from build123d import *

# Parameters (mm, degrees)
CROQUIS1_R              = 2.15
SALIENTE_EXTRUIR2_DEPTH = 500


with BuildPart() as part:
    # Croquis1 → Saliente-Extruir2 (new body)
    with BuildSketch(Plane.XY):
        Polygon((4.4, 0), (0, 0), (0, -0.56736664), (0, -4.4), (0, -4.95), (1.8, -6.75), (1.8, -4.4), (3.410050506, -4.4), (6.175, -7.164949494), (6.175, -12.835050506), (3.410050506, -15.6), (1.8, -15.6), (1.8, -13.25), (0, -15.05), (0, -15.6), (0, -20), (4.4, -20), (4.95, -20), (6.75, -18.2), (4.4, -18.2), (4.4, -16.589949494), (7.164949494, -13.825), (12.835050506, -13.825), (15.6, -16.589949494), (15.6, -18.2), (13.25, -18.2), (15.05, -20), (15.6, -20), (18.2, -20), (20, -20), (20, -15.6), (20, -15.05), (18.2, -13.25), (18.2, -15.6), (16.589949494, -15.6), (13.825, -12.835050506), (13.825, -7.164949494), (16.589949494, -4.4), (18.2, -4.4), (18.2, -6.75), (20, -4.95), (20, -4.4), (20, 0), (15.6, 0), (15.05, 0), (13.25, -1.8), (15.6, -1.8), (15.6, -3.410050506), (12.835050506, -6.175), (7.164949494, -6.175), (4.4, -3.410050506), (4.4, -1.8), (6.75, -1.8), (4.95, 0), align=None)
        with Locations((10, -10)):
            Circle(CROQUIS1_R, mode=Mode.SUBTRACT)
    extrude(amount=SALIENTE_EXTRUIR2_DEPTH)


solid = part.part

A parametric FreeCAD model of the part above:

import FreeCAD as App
import Part
import Sketcher

V = App.Vector
Q = App.Units.Quantity

doc = App.newDocument("Part")
params = doc.addObject("Spreadsheet::Sheet", "Params")
for row, (alias, value) in enumerate([
    ("sketch1_diameter", "4.3 mm"),
    ("sketch1_width", "4.95 mm"),
    ("sketch1_width2", "2.35 mm"),
    ("pad1_length", "500 mm"),
], start=1):
    params.set(f"A{row}", alias)
    params.set(f"B{row}", "=" + value)
    params.setAlias(f"B{row}", alias)

body = doc.addObject("PartDesign::Body", "Body")

# Sketch on XY plane
sketch1 = body.newObject("Sketcher::SketchObject", "Sketch")
sketch1.AttachmentSupport = (doc.getObject("XY_Plane"), [""])
sketch1.MapMode = "FlatFace"
sketch1.addGeometry(Part.LineSegment(V(0, 0, 0), V(0, -5, 0)), False)
sketch1.addGeometry(Part.LineSegment(V(0, -5, 0), V(1.8, -6.8, 0)), False)
sketch1.addGeometry(Part.LineSegment(V(1.8, -6.8, 0), V(1.8, -4.4, 0)), False)
sketch1.addGeometry(Part.LineSegment(V(1.8, -4.4, 0), V(3.4, -4.4, 0)), False)
sketch1.addGeometry(Part.LineSegment(V(3.4, -4.4, 0), V(6.2, -7.2, 0)), False)
sketch1.addGeometry(Part.LineSegment(V(6.2, -7.2, 0), V(6.2, -12.8, 0)), False)
sketch1.addGeometry(Part.LineSegment(V(6.2, -12.8, 0), V(3.4, -15.6, 0)), False)
sketch1.addGeometry(Part.LineSegment(V(3.4, -15.6, 0), V(1.8, -15.6, 0)), False)
sketch1.addGeometry(Part.LineSegment(V(1.8, -15.6, 0), V(1.8, -13.2, 0)), False)
sketch1.addGeometry(Part.LineSegment(V(1.8, -13.2, 0), V(0, -15.1, 0)), False)
sketch1.addGeometry(Part.LineSegment(V(0, -15.1, 0), V(0, -20, 0)), False)
sketch1.addGeometry(Part.LineSegment(V(0, -20, 0), V(5, -20, 0)), False)
sketch1.addGeometry(Part.LineSegment(V(5, -20, 0), V(6.8, -18.2, 0)), False)
sketch1.addGeometry(Part.LineSegment(V(6.8, -18.2, 0), V(4.4, -18.2, 0)), False)
sketch1.addGeometry(Part.LineSegment(V(4.4, -18.2, 0), V(4.4, -16.6, 0)), False)
sketch1.addGeometry(Part.LineSegment(V(4.4, -16.6, 0), V(7.2, -13.8, 0)), False)
sketch1.addGeometry(Part.LineSegment(V(7.2, -13.8, 0), V(12.8, -13.8, 0)), False)
sketch1.addGeometry(Part.LineSegment(V(12.8, -13.8, 0), V(15.6, -16.6, 0)), False)
sketch1.addGeometry(Part.LineSegment(V(15.6, -16.6, 0), V(15.6, -18.2, 0)), False)
sketch1.addGeometry(Part.LineSegment(V(15.6, -18.2, 0), V(13.2, -18.2, 0)), False)
sketch1.addGeometry(Part.LineSegment(V(13.2, -18.2, 0), V(15.1, -20, 0)), False)
sketch1.addGeometry(Part.LineSegment(V(15.1, -20, 0), V(20, -20, 0)), False)
sketch1.addGeometry(Part.LineSegment(V(20, -20, 0), V(20, -15.1, 0)), False)
sketch1.addGeometry(Part.LineSegment(V(20, -15.1, 0), V(18.2, -13.2, 0)), False)
sketch1.addGeometry(Part.LineSegment(V(18.2, -13.2, 0), V(18.2, -15.6, 0)), False)
sketch1.addGeometry(Part.LineSegment(V(18.2, -15.6, 0), V(16.6, -15.6, 0)), False)
sketch1.addGeometry(Part.LineSegment(V(16.6, -15.6, 0), V(13.8, -12.8, 0)), False)
sketch1.addGeometry(Part.LineSegment(V(13.8, -12.8, 0), V(13.8, -7.2, 0)), False)
sketch1.addGeometry(Part.LineSegment(V(13.8, -7.2, 0), V(16.6, -4.4, 0)), False)
sketch1.addGeometry(Part.LineSegment(V(16.6, -4.4, 0), V(18.2, -4.4, 0)), False)
sketch1.addGeometry(Part.LineSegment(V(18.2, -4.4, 0), V(18.2, -6.8, 0)), False)
sketch1.addGeometry(Part.LineSegment(V(18.2, -6.8, 0), V(20, -5, 0)), False)
sketch1.addGeometry(Part.LineSegment(V(20, -5, 0), V(20, 0, 0)), False)
sketch1.addGeometry(Part.LineSegment(V(20, 0, 0), V(15.1, 0, 0)), False)
sketch1.addGeometry(Part.LineSegment(V(15.1, 0, 0), V(13.2, -1.8, 0)), False)
sketch1.addGeometry(Part.LineSegment(V(13.2, -1.8, 0), V(15.6, -1.8, 0)), False)
sketch1.addGeometry(Part.LineSegment(V(15.6, -1.8, 0), V(15.6, -3.4, 0)), False)
sketch1.addGeometry(Part.LineSegment(V(15.6, -3.4, 0), V(12.8, -6.2, 0)), False)
sketch1.addGeometry(Part.LineSegment(V(12.8, -6.2, 0), V(7.2, -6.2, 0)), False)
sketch1.addGeometry(Part.LineSegment(V(7.2, -6.2, 0), V(4.4, -3.4, 0)), False)
sketch1.addGeometry(Part.LineSegment(V(4.4, -3.4, 0), V(4.4, -1.8, 0)), False)
sketch1.addGeometry(Part.LineSegment(V(4.4, -1.8, 0), V(6.8, -1.8, 0)), False)
sketch1.addGeometry(Part.LineSegment(V(6.8, -1.8, 0), V(5, 0, 0)), False)
sketch1.addGeometry(Part.LineSegment(V(5, 0, 0), V(0, 0, 0)), False)
sketch1.addGeometry(Part.Circle(V(10, -10, 0), V(0, 0, 1), 2.1), False)
sketch1.addConstraint(Sketcher.Constraint("Coincident", 0, 2, 1, 1))
sketch1.addConstraint(Sketcher.Constraint("Coincident", 1, 2, 2, 1))
sketch1.addConstraint(Sketcher.Constraint("Coincident", 2, 2, 3, 1))
sketch1.addConstraint(Sketcher.Constraint("Coincident", 3, 2, 4, 1))
sketch1.addConstraint(Sketcher.Constraint("Coincident", 4, 2, 5, 1))
sketch1.addConstraint(Sketcher.Constraint("Coincident", 5, 2, 6, 1))
sketch1.addConstraint(Sketcher.Constraint("Coincident", 6, 2, 7, 1))
sketch1.addConstraint(Sketcher.Constraint("Coincident", 7, 2, 8, 1))
sketch1.addConstraint(Sketcher.Constraint("Coincident", 8, 2, 9, 1))
sketch1.addConstraint(Sketcher.Constraint("Coincident", 9, 2, 10, 1))
sketch1.addConstraint(Sketcher.Constraint("Coincident", 10, 2, 11, 1))
sketch1.addConstraint(Sketcher.Constraint("Coincident", 11, 2, 12, 1))
sketch1.addConstraint(Sketcher.Constraint("Coincident", 12, 2, 13, 1))
sketch1.addConstraint(Sketcher.Constraint("Coincident", 13, 2, 14, 1))
sketch1.addConstraint(Sketcher.Constraint("Coincident", 14, 2, 15, 1))
sketch1.addConstraint(Sketcher.Constraint("Coincident", 15, 2, 16, 1))
sketch1.addConstraint(Sketcher.Constraint("Coincident", 16, 2, 17, 1))
sketch1.addConstraint(Sketcher.Constraint("Coincident", 17, 2, 18, 1))
sketch1.addConstraint(Sketcher.Constraint("Coincident", 18, 2, 19, 1))
sketch1.addConstraint(Sketcher.Constraint("Coincident", 19, 2, 20, 1))
sketch1.addConstraint(Sketcher.Constraint("Coincident", 20, 2, 21, 1))
sketch1.addConstraint(Sketcher.Constraint("Coincident", 21, 2, 22, 1))
sketch1.addConstraint(Sketcher.Constraint("Coincident", 22, 2, 23, 1))
sketch1.addConstraint(Sketcher.Constraint("Coincident", 23, 2, 24, 1))
sketch1.addConstraint(Sketcher.Constraint("Coincident", 24, 2, 25, 1))
sketch1.addConstraint(Sketcher.Constraint("Coincident", 25, 2, 26, 1))
sketch1.addConstraint(Sketcher.Constraint("Coincident", 26, 2, 27, 1))
sketch1.addConstraint(Sketcher.Constraint("Coincident", 27, 2, 28, 1))
sketch1.addConstraint(Sketcher.Constraint("Coincident", 28, 2, 29, 1))
sketch1.addConstraint(Sketcher.Constraint("Coincident", 29, 2, 30, 1))
sketch1.addConstraint(Sketcher.Constraint("Coincident", 30, 2, 31, 1))
sketch1.addConstraint(Sketcher.Constraint("Coincident", 31, 2, 32, 1))
sketch1.addConstraint(Sketcher.Constraint("Coincident", 32, 2, 33, 1))
sketch1.addConstraint(Sketcher.Constraint("Coincident", 33, 2, 34, 1))
sketch1.addConstraint(Sketcher.Constraint("Coincident", 34, 2, 35, 1))
sketch1.addConstraint(Sketcher.Constraint("Coincident", 35, 2, 36, 1))
sketch1.addConstraint(Sketcher.Constraint("Coincident", 36, 2, 37, 1))
sketch1.addConstraint(Sketcher.Constraint("Coincident", 37, 2, 38, 1))
sketch1.addConstraint(Sketcher.Constraint("Coincident", 38, 2, 39, 1))
sketch1.addConstraint(Sketcher.Constraint("Coincident", 39, 2, 40, 1))
sketch1.addConstraint(Sketcher.Constraint("Coincident", 40, 2, 41, 1))
sketch1.addConstraint(Sketcher.Constraint("Coincident", 41, 2, 42, 1))
sketch1.addConstraint(Sketcher.Constraint("Coincident", 42, 2, 43, 1))
sketch1.addConstraint(Sketcher.Constraint("Coincident", 43, 2, 0, 1))
sketch1.addConstraint(Sketcher.Constraint("Vertical", 0))
sketch1.addConstraint(Sketcher.Constraint("Vertical", 2))
sketch1.addConstraint(Sketcher.Constraint("Horizontal", 3))
sketch1.addConstraint(Sketcher.Constraint("Vertical", 5))
sketch1.addConstraint(Sketcher.Constraint("Horizontal", 7))
sketch1.addConstraint(Sketcher.Constraint("Vertical", 8))
sketch1.addConstraint(Sketcher.Constraint("Vertical", 10))
sketch1.addConstraint(Sketcher.Constraint("Horizontal", 11))
sketch1.addConstraint(Sketcher.Constraint("Horizontal", 13))
sketch1.addConstraint(Sketcher.Constraint("Vertical", 14))
sketch1.addConstraint(Sketcher.Constraint("Horizontal", 16))
sketch1.addConstraint(Sketcher.Constraint("Vertical", 18))
sketch1.addConstraint(Sketcher.Constraint("Horizontal", 19))
sketch1.addConstraint(Sketcher.Constraint("Horizontal", 21))
sketch1.addConstraint(Sketcher.Constraint("Vertical", 22))
sketch1.addConstraint(Sketcher.Constraint("Vertical", 24))
sketch1.addConstraint(Sketcher.Constraint("Horizontal", 25))
sketch1.addConstraint(Sketcher.Constraint("Vertical", 27))
sketch1.addConstraint(Sketcher.Constraint("Horizontal", 29))
sketch1.addConstraint(Sketcher.Constraint("Vertical", 30))
sketch1.addConstraint(Sketcher.Constraint("Vertical", 32))
sketch1.addConstraint(Sketcher.Constraint("Horizontal", 33))
sketch1.addConstraint(Sketcher.Constraint("Horizontal", 35))
sketch1.addConstraint(Sketcher.Constraint("Vertical", 36))
sketch1.addConstraint(Sketcher.Constraint("Horizontal", 38))
sketch1.addConstraint(Sketcher.Constraint("Vertical", 40))
sketch1.addConstraint(Sketcher.Constraint("Horizontal", 41))
sketch1.addConstraint(Sketcher.Constraint("Horizontal", 43))
sketch1.addConstraint(Sketcher.Constraint("Coincident", 43, 2, -1, 1))
sketch1.addConstraint(Sketcher.Constraint("PointOnObject", 9, 2, -2))
sketch1.addConstraint(Sketcher.Constraint("PointOnObject", 32, 2, -1))
sketch1.addConstraint(Sketcher.Constraint("Parallel", 1, 4))
sketch1.addConstraint(Sketcher.Constraint("Perpendicular", 4, 6))
sketch1.addConstraint(Sketcher.Constraint("Parallel", 6, 9))
sketch1.addConstraint(Sketcher.Constraint("Parallel", 9, 12))
sketch1.addConstraint(Sketcher.Constraint("Parallel", 12, 15))
sketch1.addConstraint(Sketcher.Constraint("Perpendicular", 15, 17))
sketch1.addConstraint(Sketcher.Constraint("Parallel", 17, 20))
sketch1.addConstraint(Sketcher.Constraint("Parallel", 20, 23))
sketch1.addConstraint(Sketcher.Constraint("Parallel", 23, 26))
sketch1.addConstraint(Sketcher.Constraint("Perpendicular", 26, 28))
sketch1.addConstraint(Sketcher.Constraint("Parallel", 28, 31))
sketch1.addConstraint(Sketcher.Constraint("Parallel", 31, 34))
sketch1.addConstraint(Sketcher.Constraint("Parallel", 34, 37))
sketch1.addConstraint(Sketcher.Constraint("Perpendicular", 37, 39))
sketch1.addConstraint(Sketcher.Constraint("Parallel", 39, 42))
sketch1.addConstraint(Sketcher.Constraint("Horizontal", 14, 2, 17, 2))
sketch1.addConstraint(Sketcher.Constraint("Horizontal", 13, 2, 18, 2))
sketch1.addConstraint(Sketcher.Constraint("Horizontal", 11, 2, 20, 2))
sketch1.addConstraint(Sketcher.Constraint("Horizontal", 9, 2, 22, 2))
sketch1.addConstraint(Sketcher.Constraint("Horizontal", 8, 2, 23, 2))
sketch1.addConstraint(Sketcher.Constraint("Horizontal", 7, 2, 24, 2))
sketch1.addConstraint(Sketcher.Constraint("Horizontal", 5, 2, 26, 2))
sketch1.addConstraint(Sketcher.Constraint("Horizontal", 4, 2, 27, 2))
sketch1.addConstraint(Sketcher.Constraint("Horizontal", 3, 2, 28, 2))
sketch1.addConstraint(Sketcher.Constraint("Horizontal", 1, 2, 30, 2))
sketch1.addConstraint(Sketcher.Constraint("Horizontal", 0, 2, 31, 2))
sketch1.addConstraint(Sketcher.Constraint("Horizontal", 36, 2, 39, 2))
sketch1.addConstraint(Sketcher.Constraint("Horizontal", 35, 2, 40, 2))
sketch1.addConstraint(Sketcher.Constraint("Vertical", 3, 2, 6, 2))
sketch1.addConstraint(Sketcher.Constraint("Vertical", 2, 2, 7, 2))
sketch1.addConstraint(Sketcher.Constraint("Vertical", 25, 2, 28, 2))
sketch1.addConstraint(Sketcher.Constraint("Vertical", 24, 2, 29, 2))
sketch1.addConstraint(Sketcher.Constraint("Vertical", 20, 2, 33, 2))
sketch1.addConstraint(Sketcher.Constraint("Vertical", 19, 2, 34, 2))
sketch1.addConstraint(Sketcher.Constraint("Vertical", 18, 2, 35, 2))
sketch1.addConstraint(Sketcher.Constraint("Vertical", 16, 2, 37, 2))
sketch1.addConstraint(Sketcher.Constraint("Vertical", 15, 2, 38, 2))
sketch1.addConstraint(Sketcher.Constraint("Vertical", 12, 2, 41, 2))
sketch1.addConstraint(Sketcher.Constraint("Equal", 13, 19))
sketch1.addConstraint(Sketcher.Constraint("Equal", 11, 21))
sketch1.addConstraint(Sketcher.Constraint("Equal", 7, 25))
sketch1.addConstraint(Sketcher.Constraint("Equal", 43, 0))
sketch1.addConstraint(Sketcher.Constraint("Equal", 41, 2))
sketch1.addConstraint(Sketcher.Constraint("Equal", 38, 5))
sketch1.addConstraint(Sketcher.Constraint("Equal", 2, 8))
sketch1.addConstraint(Sketcher.Constraint("Equal", 0, 10))
sketch1.addConstraint(Sketcher.Constraint("Equal", 29, 14))
sketch1.addConstraint(Sketcher.Constraint("Equal", 18, 36))
sketch1.addConstraint(Sketcher.Constraint("Equal", 9, 12))
sketch1.addConstraint(Sketcher.Constraint("Equal", 6, 15))
sketch1.addConstraint(Sketcher.Constraint("Diameter", 44, Q("4.3 mm")))
sketch1.addConstraint(Sketcher.Constraint("DistanceX", -1, 1, 44, 3, Q("10 mm")))
sketch1.addConstraint(Sketcher.Constraint("DistanceY", 44, 3, -1, 1, Q("10 mm")))
sketch1.addConstraint(Sketcher.Constraint("DistanceY", 10, 2, -1, 1, Q("20 mm")))
sketch1.addConstraint(Sketcher.Constraint("DistanceX", 11, 1, 11, 2, Q("4.95 mm")))
sketch1.addConstraint(Sketcher.Constraint("DistanceX", 13, 2, 13, 1, Q("2.35 mm")))
sketch1.addConstraint(Sketcher.Constraint("DistanceX", -1, 1, 1, 2, Q("1.8 mm")))
sketch1.addConstraint(Sketcher.Constraint("DistanceX", 4, 2, 27, 2, Q("7.65 mm")))
sketch1.addConstraint(Sketcher.Constraint("DistanceX", 16, 1, 16, 2, Q("5.670101 mm")))
sketch1.setExpression("Constraints[125]", "Params.sketch1_diameter")
sketch1.setExpression("Constraints[129]", "Params.sketch1_width")
sketch1.setExpression("Constraints[130]", "Params.sketch1_width2")
pad1 = body.newObject("PartDesign::Pad", "Pad")
pad1.Profile = sketch1
pad1.setExpression("Length", "Params.pad1_length")

doc.recompute()
